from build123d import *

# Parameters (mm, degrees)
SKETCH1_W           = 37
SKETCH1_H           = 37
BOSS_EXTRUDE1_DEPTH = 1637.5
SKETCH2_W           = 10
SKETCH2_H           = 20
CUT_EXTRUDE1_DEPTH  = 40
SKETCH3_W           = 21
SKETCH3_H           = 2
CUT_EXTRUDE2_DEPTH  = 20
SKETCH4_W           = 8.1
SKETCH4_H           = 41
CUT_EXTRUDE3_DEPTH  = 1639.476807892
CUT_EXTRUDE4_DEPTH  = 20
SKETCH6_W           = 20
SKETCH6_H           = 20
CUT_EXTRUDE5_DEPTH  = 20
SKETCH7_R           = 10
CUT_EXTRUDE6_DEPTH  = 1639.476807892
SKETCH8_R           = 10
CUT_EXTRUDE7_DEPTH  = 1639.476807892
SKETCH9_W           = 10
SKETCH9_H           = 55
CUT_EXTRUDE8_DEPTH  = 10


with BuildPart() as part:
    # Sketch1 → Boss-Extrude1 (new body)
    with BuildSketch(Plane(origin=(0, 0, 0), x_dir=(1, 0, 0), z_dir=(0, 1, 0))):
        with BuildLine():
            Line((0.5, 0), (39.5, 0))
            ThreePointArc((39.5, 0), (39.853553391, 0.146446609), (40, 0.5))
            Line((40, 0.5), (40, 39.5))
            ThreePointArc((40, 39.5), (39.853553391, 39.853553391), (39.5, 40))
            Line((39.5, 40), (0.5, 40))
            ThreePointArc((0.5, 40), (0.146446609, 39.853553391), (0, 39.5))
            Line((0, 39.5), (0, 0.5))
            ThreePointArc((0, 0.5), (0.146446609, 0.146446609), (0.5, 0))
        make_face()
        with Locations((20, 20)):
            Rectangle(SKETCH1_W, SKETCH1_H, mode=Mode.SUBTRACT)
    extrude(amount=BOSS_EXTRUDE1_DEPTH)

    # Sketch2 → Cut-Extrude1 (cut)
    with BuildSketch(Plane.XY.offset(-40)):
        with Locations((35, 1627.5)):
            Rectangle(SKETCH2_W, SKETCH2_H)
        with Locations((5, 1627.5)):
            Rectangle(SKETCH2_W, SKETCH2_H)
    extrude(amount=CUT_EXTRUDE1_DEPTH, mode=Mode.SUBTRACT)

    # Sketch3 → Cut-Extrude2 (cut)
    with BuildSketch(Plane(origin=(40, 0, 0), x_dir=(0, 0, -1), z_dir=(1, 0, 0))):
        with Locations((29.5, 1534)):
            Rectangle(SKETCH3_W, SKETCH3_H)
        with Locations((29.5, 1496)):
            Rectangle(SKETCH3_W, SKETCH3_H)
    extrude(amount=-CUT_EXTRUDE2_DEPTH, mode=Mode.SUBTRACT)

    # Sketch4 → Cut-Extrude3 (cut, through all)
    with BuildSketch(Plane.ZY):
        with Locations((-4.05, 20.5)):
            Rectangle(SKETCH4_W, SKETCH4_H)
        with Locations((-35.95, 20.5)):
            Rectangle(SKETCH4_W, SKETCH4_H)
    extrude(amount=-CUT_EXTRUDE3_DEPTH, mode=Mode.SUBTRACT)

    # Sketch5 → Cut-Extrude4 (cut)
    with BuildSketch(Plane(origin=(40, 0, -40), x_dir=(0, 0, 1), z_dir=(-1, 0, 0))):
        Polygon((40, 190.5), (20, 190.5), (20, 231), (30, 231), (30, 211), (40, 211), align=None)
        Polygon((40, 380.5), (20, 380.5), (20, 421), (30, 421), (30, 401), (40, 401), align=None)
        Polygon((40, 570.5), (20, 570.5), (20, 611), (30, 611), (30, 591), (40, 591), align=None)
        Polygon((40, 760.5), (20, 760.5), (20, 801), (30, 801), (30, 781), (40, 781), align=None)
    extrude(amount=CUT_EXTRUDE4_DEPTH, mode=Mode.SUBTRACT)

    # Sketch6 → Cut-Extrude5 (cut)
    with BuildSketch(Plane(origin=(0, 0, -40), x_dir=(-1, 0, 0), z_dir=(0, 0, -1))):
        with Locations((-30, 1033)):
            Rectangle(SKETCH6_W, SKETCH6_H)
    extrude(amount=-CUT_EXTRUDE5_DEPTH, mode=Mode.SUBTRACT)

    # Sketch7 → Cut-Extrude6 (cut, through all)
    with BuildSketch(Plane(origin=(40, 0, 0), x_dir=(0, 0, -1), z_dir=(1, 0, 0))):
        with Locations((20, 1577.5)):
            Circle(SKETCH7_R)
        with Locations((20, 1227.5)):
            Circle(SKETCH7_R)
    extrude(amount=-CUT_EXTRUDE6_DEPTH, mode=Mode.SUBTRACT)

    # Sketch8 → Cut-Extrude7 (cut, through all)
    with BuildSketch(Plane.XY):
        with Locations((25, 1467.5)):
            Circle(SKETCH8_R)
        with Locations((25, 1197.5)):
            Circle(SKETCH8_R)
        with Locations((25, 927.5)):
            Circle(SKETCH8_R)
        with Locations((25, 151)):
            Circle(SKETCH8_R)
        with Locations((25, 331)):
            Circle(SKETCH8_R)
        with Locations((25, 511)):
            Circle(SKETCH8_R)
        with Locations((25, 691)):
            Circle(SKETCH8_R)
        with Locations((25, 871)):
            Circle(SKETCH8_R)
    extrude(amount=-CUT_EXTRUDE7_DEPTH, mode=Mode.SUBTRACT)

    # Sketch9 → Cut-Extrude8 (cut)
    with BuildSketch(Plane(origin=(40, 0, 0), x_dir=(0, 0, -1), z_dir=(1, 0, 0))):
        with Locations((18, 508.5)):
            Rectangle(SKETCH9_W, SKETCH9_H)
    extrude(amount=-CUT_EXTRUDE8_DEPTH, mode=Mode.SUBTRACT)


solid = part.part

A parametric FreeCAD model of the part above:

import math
import FreeCAD as App
import Part
import Sketcher
Q = App.Units.Quantity


def add_polygon(sketch, points):
    """Adds a closed chain of lines whose ends are joined by coincident constraints."""
    first, n = sketch.GeometryCount, len(points)
    for a, b in zip(points, points[1:] + points[:1]):
        sketch.addGeometry(Part.LineSegment(App.Vector(*a, 0), App.Vector(*b, 0)), False)
    for i in range(n):
        sketch.addConstraint(Sketcher.Constraint("Coincident", first + i, 2, first + (i + 1) % n, 1))

doc = App.newDocument("Part")
body = doc.addObject("PartDesign::Body", "Body")

# Sketch on XZ plane
sketch1 = body.newObject("Sketcher::SketchObject", "Sketch")
sketch1.AttachmentSupport = (doc.getObject("XZ_Plane"), [""])
sketch1.MapMode = "FlatFace"
sketch1.addGeometry(Part.LineSegment(App.Vector(0.5, 0, 0), App.Vector(39.5, 0, 0)), False)  # 0
sketch1.addGeometry(Part.ArcOfCircle(Part.Circle(App.Vector(39.5, -0.5, 0), App.Vector(0, 0, 1), 0.5), math.radians(0), math.radians(90)), False)  # 1
sketch1.addGeometry(Part.LineSegment(App.Vector(40, -0.5, 0), App.Vector(40, -39.5, 0)), False)  # 2
sketch1.addGeometry(Part.ArcOfCircle(Part.Circle(App.Vector(39.5, -39.5, 0), App.Vector(0, 0, 1), 0.5), math.radians(-90), math.radians(0)), False)  # 3
sketch1.addGeometry(Part.LineSegment(App.Vector(39.5, -40, 0), App.Vector(0.5, -40, 0)), False)  # 4
sketch1.addGeometry(Part.ArcOfCircle(Part.Circle(App.Vector(0.5, -39.5, 0), App.Vector(0, 0, 1), 0.5), math.radians(180), math.radians(270)), False)  # 5
sketch1.addGeometry(Part.LineSegment(App.Vector(0, -39.5, 0), App.Vector(0, -0.5, 0)), False)  # 6
sketch1.addGeometry(Part.ArcOfCircle(Part.Circle(App.Vector(0.5, -0.5, 0), App.Vector(0, 0, 1), 0.5), math.radians(90), math.radians(180)), False)  # 7
add_polygon(sketch1, [(38.5, -1.5), (1.5, -1.5), (1.5, -38.5), (38.5, -38.5)])  # lines 8-11
sketch1.addConstraint([
    Sketcher.Constraint("Tangent", 0, 2, 1, 2),
    Sketcher.Constraint("Tangent", 1, 1, 2, 1),
    Sketcher.Constraint("Tangent", 2, 2, 3, 2),
    Sketcher.Constraint("Tangent", 3, 1, 4, 1),
    Sketcher.Constraint("Tangent", 4, 2, 5, 2),
    Sketcher.Constraint("Tangent", 5, 1, 6, 1),
    Sketcher.Constraint("Tangent", 6, 2, 7, 2),
    Sketcher.Constraint("Tangent", 7, 1, 0, 1),
    Sketcher.Constraint("Horizontal", 0),
    Sketcher.Constraint("Vertical", 2),
    Sketcher.Constraint("Horizontal", 4),
    Sketcher.Constraint("Vertical", 6),
    Sketcher.Constraint("Horizontal", 8),
    Sketcher.Constraint("Vertical", 9),
    Sketcher.Constraint("Horizontal", 10),
    Sketcher.Constraint("Vertical", 11),
    Sketcher.Constraint("Equal", 1, 3),
    Sketcher.Constraint("Equal", 3, 5),
    Sketcher.Constraint("Equal", 5, 7),
    Sketcher.Constraint("PointOnObject", 0, 2, -1),
    Sketcher.Constraint("PointOnObject", 5, 1, -2),
    Sketcher.Constraint("Equal", 4, 2),
    Sketcher.Constraint("Equal", 10, 9),
    Sketcher.Constraint("Radius", 1, Q("0.5 mm")),
    Sketcher.Constraint("DistanceX", 0, 1, 0, 2, Q("39 mm")),
    Sketcher.Constraint("DistanceX", 8, 2, 8, 1, Q("37 mm")),
    Sketcher.Constraint("DistanceX", 7, 3, 8, 2, Q("1 mm")),
    Sketcher.Constraint("DistanceY", 8, 2, 7, 3, Q("1 mm")),
])
pad1 = body.newObject("PartDesign::Pad", "Pad")
pad1.Profile = sketch1
pad1.Length = 1637.5
pad1.Reversed = True

# Sketch on XY plane
sketch2 = body.newObject("Sketcher::SketchObject", "Sketch001")
sketch2.AttachmentSupport = (doc.getObject("XY_Plane"), [""])
sketch2.MapMode = "FlatFace"
sketch2.AttachmentOffset = App.Placement(App.Vector(0, 0, -40), App.Rotation())
add_polygon(sketch2, [(30, 1637.5), (30, 1617.5), (40, 1617.5), (40, 1637.5)])  # lines 0-3
add_polygon(sketch2, [(0, 1637.5), (0, 1617.5), (10, 1617.5), (10, 1637.5)])  # lines 4-7
sketch2.addConstraint([
    Sketcher.Constraint("Vertical", 0),
    Sketcher.Constraint("Horizontal", 1),
    Sketcher.Constraint("Vertical", 2),
    Sketcher.Constraint("Horizontal", 3),
    Sketcher.Constraint("Vertical", 4),
    Sketcher.Constraint("Horizontal", 5),
    Sketcher.Constraint("Vertical", 6),
    Sketcher.Constraint("Horizontal", 7),
    Sketcher.Constraint("PointOnObject", 4, 2, -2),
    Sketcher.Constraint("Horizontal", 1, 2, 4, 2),
    Sketcher.Constraint("Horizontal", 3, 2, 6, 2),
    Sketcher.Constraint("Equal", 3, 5),
    Sketcher.Constraint("DistanceX", 1, 1, 1, 2, Q("10 mm")),
    Sketcher.Constraint("DistanceY", 0, 2, 0, 1, Q("20 mm")),
    Sketcher.Constraint("DistanceX", -1, 1, 0, 2, Q("30 mm")),
    Sketcher.Constraint("DistanceY", -1, 1, 0, 2, Q("1617.5 mm")),
])
pocket1 = body.newObject("PartDesign::Pocket", "Pocket")
pocket1.Profile = sketch2
pocket1.Length = 40
pocket1.Reversed = True

# Sketch on YZ plane
sketch3 = body.newObject("Sketcher::SketchObject", "Sketch002")
sketch3.AttachmentSupport = (doc.getObject("YZ_Plane"), [""])
sketch3.MapMode = "FlatFace"
sketch3.AttachmentOffset = App.Placement(App.Vector(0, 0, 40), App.Rotation())
add_polygon(sketch3, [(1535, -19), (1533, -19), (1533, -40), (1535, -40)])  # lines 0-3
add_polygon(sketch3, [(1497, -19), (1495, -19), (1495, -40), (1497, -40)])  # lines 4-7
sketch3.addConstraint([
    Sketcher.Constraint("Horizontal", 0),
    Sketcher.Constraint("Vertical", 1),
    Sketcher.Constraint("Horizontal", 2),
    Sketcher.Constraint("Vertical", 3),
    Sketcher.Constraint("Horizontal", 4),
    Sketcher.Constraint("Vertical", 5),
    Sketcher.Constraint("Horizontal", 6),
    Sketcher.Constraint("Vertical", 7),
    Sketcher.Constraint("Horizontal", 3, 2, 4, 2),
    Sketcher.Constraint("Horizontal", 2, 2, 5, 2),
    Sketcher.Constraint("Equal", 2, 4),
    Sketcher.Constraint("DistanceX", 0, 2, 0, 1, Q("2 mm")),
    Sketcher.Constraint("DistanceY", 1, 2, 1, 1, Q("21 mm")),
    Sketcher.Constraint("DistanceX", -1, 1, 0, 2, Q("1533 mm")),
    Sketcher.Constraint("DistanceY", 0, 2, -1, 1, Q("19 mm")),
    Sketcher.Constraint("DistanceX", -1, 1, 4, 2, Q("1495 mm")),
])
pocket2 = body.newObject("PartDesign::Pocket", "Pocket001")
pocket2.Profile = sketch3
pocket2.Length = 20

# Sketch on YZ plane
sketch4 = body.newObject("Sketcher::SketchObject", "Sketch003")
sketch4.AttachmentSupport = (doc.getObject("YZ_Plane"), [""])
sketch4.MapMode = "FlatFace"
add_polygon(sketch4, [(41, -8.1), (0, -8.1), (0, 0), (41, 0)])  # lines 0-3
add_polygon(sketch4, [(41, -40), (0, -40), (0, -31.9), (41, -31.9)])  # lines 4-7
sketch4.addConstraint([
    Sketcher.Constraint("Horizontal", 0),
    Sketcher.Constraint("Vertical", 1),
    Sketcher.Constraint("Horizontal", 2),
    Sketcher.Constraint("Vertical", 3),
    Sketcher.Constraint("Horizontal", 4),
    Sketcher.Constraint("Vertical", 5),
    Sketcher.Constraint("Horizontal", 6),
    Sketcher.Constraint("Vertical", 7),
    Sketcher.Constraint("Coincident", 1, 2, -1, 1),
    Sketcher.Constraint("PointOnObject", 4, 2, -2),
    Sketcher.Constraint("Vertical", 3, 2, 6, 2),
    Sketcher.Constraint("Equal", 3, 5),
    Sketcher.Constraint("DistanceX", 0, 2, 0, 1, Q("41 mm")),
    Sketcher.Constraint("DistanceY", 1, 1, 1, 2, Q("8.1 mm")),
    Sketcher.Constraint("DistanceY", 4, 2, -1, 1, Q("40 mm")),
])
pocket3 = body.newObject("PartDesign::Pocket", "Pocket002")
pocket3.Profile = sketch4
pocket3.Type = "ThroughAll"
pocket3.Reversed = True

# Sketch on YZ plane
sketch5 = body.newObject("Sketcher::SketchObject", "Sketch004")
sketch5.AttachmentSupport = (doc.getObject("YZ_Plane"), [""])
sketch5.MapMode = "FlatFace"
sketch5.AttachmentOffset = App.Placement(App.Vector(0, 0, 40), App.Rotation())
add_polygon(sketch5, [(190.5, -20), (190.5, 0), (211, 0), (211, -10), (231, -10), (231, -20)])  # lines 0-5
add_polygon(sketch5, [(380.5, -20), (380.5, 0), (401, 0), (401, -10), (421, -10), (421, -20)])  # lines 6-11
add_polygon(sketch5, [(570.5, -20), (570.5, 0), (591, 0), (591, -10), (611, -10), (611, -20)])  # lines 12-17
add_polygon(sketch5, [(760.5, -20), (760.5, 0), (781, 0), (781, -10), (801, -10), (801, -20)])  # lines 18-23
sketch5.addConstraint([
    Sketcher.Constraint("Vertical", 0),
    Sketcher.Constraint("Horizontal", 1),
    Sketcher.Constraint("Vertical", 2),
    Sketcher.Constraint("Horizontal", 3),
    Sketcher.Constraint("Vertical", 4),
    Sketcher.Constraint("Horizontal", 5),
    Sketcher.Constraint("Vertical", 6),
    Sketcher.Constraint("Horizontal", 7),
    Sketcher.Constraint("Vertical", 8),
    Sketcher.Constraint("Horizontal", 9),
    Sketcher.Constraint("Vertical", 10),
    Sketcher.Constraint("Horizontal", 11),
    Sketcher.Constraint("Vertical", 12),
    Sketcher.Constraint("Horizontal", 13),
    Sketcher.Constraint("Vertical", 14),
    Sketcher.Constraint("Horizontal", 15),
    Sketcher.Constraint("Vertical", 16),
    Sketcher.Constraint("Horizontal", 17),
    Sketcher.Constraint("Vertical", 18),
    Sketcher.Constraint("Horizontal", 19),
    Sketcher.Constraint("Vertical", 20),
    Sketcher.Constraint("Horizontal", 21),
    Sketcher.Constraint("Vertical", 22),
    Sketcher.Constraint("Horizontal", 23),
    Sketcher.Constraint("PointOnObject", 0, 2, -1),
    Sketcher.Constraint("PointOnObject", 6, 2, -1),
    Sketcher.Constraint("PointOnObject", 12, 2, -1),
    Sketcher.Constraint("PointOnObject", 18, 2, -1),
    Sketcher.Constraint("Horizontal", 3, 2, 8, 2),
    Sketcher.Constraint("Horizontal", 5, 2, 10, 2),
    Sketcher.Constraint("Horizontal", 9, 2, 14, 2),
    Sketcher.Constraint("Horizontal", 11, 2, 16, 2),
    Sketcher.Constraint("Horizontal", 15, 2, 20, 2),
    Sketcher.Constraint("Horizontal", 17, 2, 22, 2),
    Sketcher.Constraint("Equal", 1, 7),
    Sketcher.Constraint("Equal", 3, 9),
    Sketcher.Constraint("Equal", 7, 13),
    Sketcher.Constraint("Equal", 9, 15),
    Sketcher.Constraint("Equal", 13, 19),
    Sketcher.Constraint("Equal", 15, 21),
    Sketcher.Constraint("Equal", 21, 0),
    Sketcher.Constraint("Equal", 2, 4),
    Sketcher.Constraint("DistanceX", 3, 1, 3, 2, Q("20 mm")),
    Sketcher.Constraint("DistanceX", 1, 1, 1, 2, Q("20.5 mm")),
    Sketcher.Constraint("DistanceX", -1, 1, 1, 2, Q("211 mm")),
    Sketcher.Constraint("DistanceX", -1, 1, 7, 2, Q("401 mm")),
    Sketcher.Constraint("DistanceX", -1, 1, 13, 2, Q("591 mm")),
    Sketcher.Constraint("DistanceX", -1, 1, 19, 2, Q("781 mm")),
])
pocket4 = body.newObject("PartDesign::Pocket", "Pocket003")
pocket4.Profile = sketch5
pocket4.Length = 20

# Sketch on XY plane
sketch6 = body.newObject("Sketcher::SketchObject", "Sketch005")
sketch6.AttachmentSupport = (doc.getObject("XY_Plane"), [""])
sketch6.MapMode = "FlatFace"
sketch6.AttachmentOffset = App.Placement(App.Vector(0, 0, -40), App.Rotation())
add_polygon(sketch6, [(40, 1043), (40, 1023), (20, 1023), (20, 1043)])  # lines 0-3
sketch6.addConstraint([
    Sketcher.Constraint("Vertical", 0),
    Sketcher.Constraint("Horizontal", 1),
    Sketcher.Constraint("Vertical", 2),
    Sketcher.Constraint("Horizontal", 3),
    Sketcher.Constraint("Equal", 3, 0),
    Sketcher.Constraint("DistanceX", 1, 2, 1, 1, Q("20 mm")),
    Sketcher.Constraint("DistanceX", -1, 1, 0, 2, Q("40 mm")),
    Sketcher.Constraint("DistanceY", -1, 1, 0, 2, Q("1023 mm")),
])
pocket5 = body.newObject("PartDesign::Pocket", "Pocket004")
pocket5.Profile = sketch6
pocket5.Length = 20
pocket5.Reversed = True

# Sketch on YZ plane
sketch7 = body.newObject("Sketcher::SketchObject", "Sketch006")
sketch7.AttachmentSupport = (doc.getObject("YZ_Plane"), [""])
sketch7.MapMode = "FlatFace"
sketch7.AttachmentOffset = App.Placement(App.Vector(0, 0, 40), App.Rotation())
sketch7.addGeometry([
    Part.Circle(App.Vector(1577.5, -20, 0), App.Vector(0, 0, 1), 10),
    Part.Circle(App.Vector(1227.5, -20, 0), App.Vector(0, 0, 1), 10),
], False)
sketch7.addConstraint([
    Sketcher.Constraint("Equal", 0, 1),
    Sketcher.Constraint("Horizontal", 0, 3, 1, 3),
    Sketcher.Constraint("Diameter", 0, Q("20 mm")),
    Sketcher.Constraint("DistanceY", 0, 3, -1, 1, Q("20 mm")),
    Sketcher.Constraint("DistanceX", 1, 3, 0, 3, Q("350 mm")),
    Sketcher.Constraint("DistanceX", -1, 1, 0, 3, Q("1577.5 mm")),
])
pocket6 = body.newObject("PartDesign::Pocket", "Pocket005")
pocket6.Profile = sketch7
pocket6.Type = "ThroughAll"

# Sketch on XY plane
sketch8 = body.newObject("Sketcher::SketchObject", "Sketch007")
sketch8.AttachmentSupport = (doc.getObject("XY_Plane"), [""])
sketch8.MapMode = "FlatFace"
sketch8.addGeometry([
    Part.Circle(App.Vector(25, 1467.5, 0), App.Vector(0, 0, 1), 10),  # 0
    Part.Circle(App.Vector(25, 1197.5, 0), App.Vector(0, 0, 1), 10),  # 1
    Part.Circle(App.Vector(25, 927.5, 0), App.Vector(0, 0, 1), 10),  # 2
    Part.Circle(App.Vector(25, 151, 0), App.Vector(0, 0, 1), 10),  # 3
    Part.Circle(App.Vector(25, 331, 0), App.Vector(0, 0, 1), 10),  # 4
    Part.Circle(App.Vector(25, 511, 0), App.Vector(0, 0, 1), 10),  # 5
    Part.Circle(App.Vector(25, 691, 0), App.Vector(0, 0, 1), 10),  # 6
    Part.Circle(App.Vector(25, 871, 0), App.Vector(0, 0, 1), 10),  # 7
], False)
sketch8.addConstraint([
    Sketcher.Constraint("Equal", 0, 1),
    Sketcher.Constraint("Equal", 1, 2),
    Sketcher.Constraint("Equal", 2, 3),
    Sketcher.Constraint("Equal", 3, 4),
    Sketcher.Constraint("Equal", 4, 5),
    Sketcher.Constraint("Equal", 5, 6),
    Sketcher.Constraint("Equal", 6, 7),
    Sketcher.Constraint("Vertical", 0, 3, 1, 3),
    Sketcher.Constraint("Vertical", 1, 3, 2, 3),
    Sketcher.Constraint("Vertical", 2, 3, 3, 3),
    Sketcher.Constraint("Vertical", 3, 3, 4, 3),
    Sketcher.Constraint("Vertical", 4, 3, 5, 3),
    Sketcher.Constraint("Vertical", 5, 3, 6, 3),
    Sketcher.Constraint("Vertical", 6, 3, 7, 3),
    Sketcher.Constraint("Diameter", 0, Q("20 mm")),
    Sketcher.Constraint("DistanceX", -1, 1, 0, 3, Q("25 mm")),
    Sketcher.Constraint("DistanceY", -1, 1, 3, 3, Q("151 mm")),
    Sketcher.Constraint("DistanceY", -1, 1, 4, 3, Q("331 mm")),
    Sketcher.Constraint("DistanceY", -1, 1, 5, 3, Q("511 mm")),
    Sketcher.Constraint("DistanceY", -1, 1, 6, 3, Q("691 mm")),
    Sketcher.Constraint("DistanceY", -1, 1, 7, 3, Q("871 mm")),
    Sketcher.Constraint("DistanceY", 1, 3, 0, 3, Q("270 mm")),
    Sketcher.Constraint("DistanceY", 2, 3, 1, 3, Q("270 mm")),
    Sketcher.Constraint("DistanceY", -1, 1, 0, 3, Q("1467.5 mm")),
])
pocket7 = body.newObject("PartDesign::Pocket", "Pocket006")
pocket7.Profile = sketch8
pocket7.Type = "ThroughAll"

# Sketch on YZ plane
sketch9 = body.newObject("Sketcher::SketchObject", "Sketch008")
sketch9.AttachmentSupport = (doc.getObject("YZ_Plane"), [""])
sketch9.MapMode = "FlatFace"
sketch9.AttachmentOffset = App.Placement(App.Vector(0, 0, 40), App.Rotation())
add_polygon(sketch9, [(536, -13), (481, -13), (481, -23), (536, -23)])  # lines 0-3
sketch9.addConstraint([
    Sketcher.Constraint("Horizontal", 0),
    Sketcher.Constraint("Vertical", 1),
    Sketcher.Constraint("Horizontal", 2),
    Sketcher.Constraint("Vertical", 3),
    Sketcher.Constraint("DistanceX", 0, 2, 0, 1, Q("55 mm")),
    Sketcher.Constraint("DistanceY", 1, 2, 1, 1, Q("10 mm")),
    Sketcher.Constraint("DistanceX", -1, 1, 0, 2, Q("481 mm")),
    Sketcher.Constraint("DistanceY", 0, 2, -1, 1, Q("13 mm")),
])
pocket8 = body.newObject("PartDesign::Pocket", "Pocket007")
pocket8.Profile = sketch9
pocket8.Length = 10

doc.recompute()
